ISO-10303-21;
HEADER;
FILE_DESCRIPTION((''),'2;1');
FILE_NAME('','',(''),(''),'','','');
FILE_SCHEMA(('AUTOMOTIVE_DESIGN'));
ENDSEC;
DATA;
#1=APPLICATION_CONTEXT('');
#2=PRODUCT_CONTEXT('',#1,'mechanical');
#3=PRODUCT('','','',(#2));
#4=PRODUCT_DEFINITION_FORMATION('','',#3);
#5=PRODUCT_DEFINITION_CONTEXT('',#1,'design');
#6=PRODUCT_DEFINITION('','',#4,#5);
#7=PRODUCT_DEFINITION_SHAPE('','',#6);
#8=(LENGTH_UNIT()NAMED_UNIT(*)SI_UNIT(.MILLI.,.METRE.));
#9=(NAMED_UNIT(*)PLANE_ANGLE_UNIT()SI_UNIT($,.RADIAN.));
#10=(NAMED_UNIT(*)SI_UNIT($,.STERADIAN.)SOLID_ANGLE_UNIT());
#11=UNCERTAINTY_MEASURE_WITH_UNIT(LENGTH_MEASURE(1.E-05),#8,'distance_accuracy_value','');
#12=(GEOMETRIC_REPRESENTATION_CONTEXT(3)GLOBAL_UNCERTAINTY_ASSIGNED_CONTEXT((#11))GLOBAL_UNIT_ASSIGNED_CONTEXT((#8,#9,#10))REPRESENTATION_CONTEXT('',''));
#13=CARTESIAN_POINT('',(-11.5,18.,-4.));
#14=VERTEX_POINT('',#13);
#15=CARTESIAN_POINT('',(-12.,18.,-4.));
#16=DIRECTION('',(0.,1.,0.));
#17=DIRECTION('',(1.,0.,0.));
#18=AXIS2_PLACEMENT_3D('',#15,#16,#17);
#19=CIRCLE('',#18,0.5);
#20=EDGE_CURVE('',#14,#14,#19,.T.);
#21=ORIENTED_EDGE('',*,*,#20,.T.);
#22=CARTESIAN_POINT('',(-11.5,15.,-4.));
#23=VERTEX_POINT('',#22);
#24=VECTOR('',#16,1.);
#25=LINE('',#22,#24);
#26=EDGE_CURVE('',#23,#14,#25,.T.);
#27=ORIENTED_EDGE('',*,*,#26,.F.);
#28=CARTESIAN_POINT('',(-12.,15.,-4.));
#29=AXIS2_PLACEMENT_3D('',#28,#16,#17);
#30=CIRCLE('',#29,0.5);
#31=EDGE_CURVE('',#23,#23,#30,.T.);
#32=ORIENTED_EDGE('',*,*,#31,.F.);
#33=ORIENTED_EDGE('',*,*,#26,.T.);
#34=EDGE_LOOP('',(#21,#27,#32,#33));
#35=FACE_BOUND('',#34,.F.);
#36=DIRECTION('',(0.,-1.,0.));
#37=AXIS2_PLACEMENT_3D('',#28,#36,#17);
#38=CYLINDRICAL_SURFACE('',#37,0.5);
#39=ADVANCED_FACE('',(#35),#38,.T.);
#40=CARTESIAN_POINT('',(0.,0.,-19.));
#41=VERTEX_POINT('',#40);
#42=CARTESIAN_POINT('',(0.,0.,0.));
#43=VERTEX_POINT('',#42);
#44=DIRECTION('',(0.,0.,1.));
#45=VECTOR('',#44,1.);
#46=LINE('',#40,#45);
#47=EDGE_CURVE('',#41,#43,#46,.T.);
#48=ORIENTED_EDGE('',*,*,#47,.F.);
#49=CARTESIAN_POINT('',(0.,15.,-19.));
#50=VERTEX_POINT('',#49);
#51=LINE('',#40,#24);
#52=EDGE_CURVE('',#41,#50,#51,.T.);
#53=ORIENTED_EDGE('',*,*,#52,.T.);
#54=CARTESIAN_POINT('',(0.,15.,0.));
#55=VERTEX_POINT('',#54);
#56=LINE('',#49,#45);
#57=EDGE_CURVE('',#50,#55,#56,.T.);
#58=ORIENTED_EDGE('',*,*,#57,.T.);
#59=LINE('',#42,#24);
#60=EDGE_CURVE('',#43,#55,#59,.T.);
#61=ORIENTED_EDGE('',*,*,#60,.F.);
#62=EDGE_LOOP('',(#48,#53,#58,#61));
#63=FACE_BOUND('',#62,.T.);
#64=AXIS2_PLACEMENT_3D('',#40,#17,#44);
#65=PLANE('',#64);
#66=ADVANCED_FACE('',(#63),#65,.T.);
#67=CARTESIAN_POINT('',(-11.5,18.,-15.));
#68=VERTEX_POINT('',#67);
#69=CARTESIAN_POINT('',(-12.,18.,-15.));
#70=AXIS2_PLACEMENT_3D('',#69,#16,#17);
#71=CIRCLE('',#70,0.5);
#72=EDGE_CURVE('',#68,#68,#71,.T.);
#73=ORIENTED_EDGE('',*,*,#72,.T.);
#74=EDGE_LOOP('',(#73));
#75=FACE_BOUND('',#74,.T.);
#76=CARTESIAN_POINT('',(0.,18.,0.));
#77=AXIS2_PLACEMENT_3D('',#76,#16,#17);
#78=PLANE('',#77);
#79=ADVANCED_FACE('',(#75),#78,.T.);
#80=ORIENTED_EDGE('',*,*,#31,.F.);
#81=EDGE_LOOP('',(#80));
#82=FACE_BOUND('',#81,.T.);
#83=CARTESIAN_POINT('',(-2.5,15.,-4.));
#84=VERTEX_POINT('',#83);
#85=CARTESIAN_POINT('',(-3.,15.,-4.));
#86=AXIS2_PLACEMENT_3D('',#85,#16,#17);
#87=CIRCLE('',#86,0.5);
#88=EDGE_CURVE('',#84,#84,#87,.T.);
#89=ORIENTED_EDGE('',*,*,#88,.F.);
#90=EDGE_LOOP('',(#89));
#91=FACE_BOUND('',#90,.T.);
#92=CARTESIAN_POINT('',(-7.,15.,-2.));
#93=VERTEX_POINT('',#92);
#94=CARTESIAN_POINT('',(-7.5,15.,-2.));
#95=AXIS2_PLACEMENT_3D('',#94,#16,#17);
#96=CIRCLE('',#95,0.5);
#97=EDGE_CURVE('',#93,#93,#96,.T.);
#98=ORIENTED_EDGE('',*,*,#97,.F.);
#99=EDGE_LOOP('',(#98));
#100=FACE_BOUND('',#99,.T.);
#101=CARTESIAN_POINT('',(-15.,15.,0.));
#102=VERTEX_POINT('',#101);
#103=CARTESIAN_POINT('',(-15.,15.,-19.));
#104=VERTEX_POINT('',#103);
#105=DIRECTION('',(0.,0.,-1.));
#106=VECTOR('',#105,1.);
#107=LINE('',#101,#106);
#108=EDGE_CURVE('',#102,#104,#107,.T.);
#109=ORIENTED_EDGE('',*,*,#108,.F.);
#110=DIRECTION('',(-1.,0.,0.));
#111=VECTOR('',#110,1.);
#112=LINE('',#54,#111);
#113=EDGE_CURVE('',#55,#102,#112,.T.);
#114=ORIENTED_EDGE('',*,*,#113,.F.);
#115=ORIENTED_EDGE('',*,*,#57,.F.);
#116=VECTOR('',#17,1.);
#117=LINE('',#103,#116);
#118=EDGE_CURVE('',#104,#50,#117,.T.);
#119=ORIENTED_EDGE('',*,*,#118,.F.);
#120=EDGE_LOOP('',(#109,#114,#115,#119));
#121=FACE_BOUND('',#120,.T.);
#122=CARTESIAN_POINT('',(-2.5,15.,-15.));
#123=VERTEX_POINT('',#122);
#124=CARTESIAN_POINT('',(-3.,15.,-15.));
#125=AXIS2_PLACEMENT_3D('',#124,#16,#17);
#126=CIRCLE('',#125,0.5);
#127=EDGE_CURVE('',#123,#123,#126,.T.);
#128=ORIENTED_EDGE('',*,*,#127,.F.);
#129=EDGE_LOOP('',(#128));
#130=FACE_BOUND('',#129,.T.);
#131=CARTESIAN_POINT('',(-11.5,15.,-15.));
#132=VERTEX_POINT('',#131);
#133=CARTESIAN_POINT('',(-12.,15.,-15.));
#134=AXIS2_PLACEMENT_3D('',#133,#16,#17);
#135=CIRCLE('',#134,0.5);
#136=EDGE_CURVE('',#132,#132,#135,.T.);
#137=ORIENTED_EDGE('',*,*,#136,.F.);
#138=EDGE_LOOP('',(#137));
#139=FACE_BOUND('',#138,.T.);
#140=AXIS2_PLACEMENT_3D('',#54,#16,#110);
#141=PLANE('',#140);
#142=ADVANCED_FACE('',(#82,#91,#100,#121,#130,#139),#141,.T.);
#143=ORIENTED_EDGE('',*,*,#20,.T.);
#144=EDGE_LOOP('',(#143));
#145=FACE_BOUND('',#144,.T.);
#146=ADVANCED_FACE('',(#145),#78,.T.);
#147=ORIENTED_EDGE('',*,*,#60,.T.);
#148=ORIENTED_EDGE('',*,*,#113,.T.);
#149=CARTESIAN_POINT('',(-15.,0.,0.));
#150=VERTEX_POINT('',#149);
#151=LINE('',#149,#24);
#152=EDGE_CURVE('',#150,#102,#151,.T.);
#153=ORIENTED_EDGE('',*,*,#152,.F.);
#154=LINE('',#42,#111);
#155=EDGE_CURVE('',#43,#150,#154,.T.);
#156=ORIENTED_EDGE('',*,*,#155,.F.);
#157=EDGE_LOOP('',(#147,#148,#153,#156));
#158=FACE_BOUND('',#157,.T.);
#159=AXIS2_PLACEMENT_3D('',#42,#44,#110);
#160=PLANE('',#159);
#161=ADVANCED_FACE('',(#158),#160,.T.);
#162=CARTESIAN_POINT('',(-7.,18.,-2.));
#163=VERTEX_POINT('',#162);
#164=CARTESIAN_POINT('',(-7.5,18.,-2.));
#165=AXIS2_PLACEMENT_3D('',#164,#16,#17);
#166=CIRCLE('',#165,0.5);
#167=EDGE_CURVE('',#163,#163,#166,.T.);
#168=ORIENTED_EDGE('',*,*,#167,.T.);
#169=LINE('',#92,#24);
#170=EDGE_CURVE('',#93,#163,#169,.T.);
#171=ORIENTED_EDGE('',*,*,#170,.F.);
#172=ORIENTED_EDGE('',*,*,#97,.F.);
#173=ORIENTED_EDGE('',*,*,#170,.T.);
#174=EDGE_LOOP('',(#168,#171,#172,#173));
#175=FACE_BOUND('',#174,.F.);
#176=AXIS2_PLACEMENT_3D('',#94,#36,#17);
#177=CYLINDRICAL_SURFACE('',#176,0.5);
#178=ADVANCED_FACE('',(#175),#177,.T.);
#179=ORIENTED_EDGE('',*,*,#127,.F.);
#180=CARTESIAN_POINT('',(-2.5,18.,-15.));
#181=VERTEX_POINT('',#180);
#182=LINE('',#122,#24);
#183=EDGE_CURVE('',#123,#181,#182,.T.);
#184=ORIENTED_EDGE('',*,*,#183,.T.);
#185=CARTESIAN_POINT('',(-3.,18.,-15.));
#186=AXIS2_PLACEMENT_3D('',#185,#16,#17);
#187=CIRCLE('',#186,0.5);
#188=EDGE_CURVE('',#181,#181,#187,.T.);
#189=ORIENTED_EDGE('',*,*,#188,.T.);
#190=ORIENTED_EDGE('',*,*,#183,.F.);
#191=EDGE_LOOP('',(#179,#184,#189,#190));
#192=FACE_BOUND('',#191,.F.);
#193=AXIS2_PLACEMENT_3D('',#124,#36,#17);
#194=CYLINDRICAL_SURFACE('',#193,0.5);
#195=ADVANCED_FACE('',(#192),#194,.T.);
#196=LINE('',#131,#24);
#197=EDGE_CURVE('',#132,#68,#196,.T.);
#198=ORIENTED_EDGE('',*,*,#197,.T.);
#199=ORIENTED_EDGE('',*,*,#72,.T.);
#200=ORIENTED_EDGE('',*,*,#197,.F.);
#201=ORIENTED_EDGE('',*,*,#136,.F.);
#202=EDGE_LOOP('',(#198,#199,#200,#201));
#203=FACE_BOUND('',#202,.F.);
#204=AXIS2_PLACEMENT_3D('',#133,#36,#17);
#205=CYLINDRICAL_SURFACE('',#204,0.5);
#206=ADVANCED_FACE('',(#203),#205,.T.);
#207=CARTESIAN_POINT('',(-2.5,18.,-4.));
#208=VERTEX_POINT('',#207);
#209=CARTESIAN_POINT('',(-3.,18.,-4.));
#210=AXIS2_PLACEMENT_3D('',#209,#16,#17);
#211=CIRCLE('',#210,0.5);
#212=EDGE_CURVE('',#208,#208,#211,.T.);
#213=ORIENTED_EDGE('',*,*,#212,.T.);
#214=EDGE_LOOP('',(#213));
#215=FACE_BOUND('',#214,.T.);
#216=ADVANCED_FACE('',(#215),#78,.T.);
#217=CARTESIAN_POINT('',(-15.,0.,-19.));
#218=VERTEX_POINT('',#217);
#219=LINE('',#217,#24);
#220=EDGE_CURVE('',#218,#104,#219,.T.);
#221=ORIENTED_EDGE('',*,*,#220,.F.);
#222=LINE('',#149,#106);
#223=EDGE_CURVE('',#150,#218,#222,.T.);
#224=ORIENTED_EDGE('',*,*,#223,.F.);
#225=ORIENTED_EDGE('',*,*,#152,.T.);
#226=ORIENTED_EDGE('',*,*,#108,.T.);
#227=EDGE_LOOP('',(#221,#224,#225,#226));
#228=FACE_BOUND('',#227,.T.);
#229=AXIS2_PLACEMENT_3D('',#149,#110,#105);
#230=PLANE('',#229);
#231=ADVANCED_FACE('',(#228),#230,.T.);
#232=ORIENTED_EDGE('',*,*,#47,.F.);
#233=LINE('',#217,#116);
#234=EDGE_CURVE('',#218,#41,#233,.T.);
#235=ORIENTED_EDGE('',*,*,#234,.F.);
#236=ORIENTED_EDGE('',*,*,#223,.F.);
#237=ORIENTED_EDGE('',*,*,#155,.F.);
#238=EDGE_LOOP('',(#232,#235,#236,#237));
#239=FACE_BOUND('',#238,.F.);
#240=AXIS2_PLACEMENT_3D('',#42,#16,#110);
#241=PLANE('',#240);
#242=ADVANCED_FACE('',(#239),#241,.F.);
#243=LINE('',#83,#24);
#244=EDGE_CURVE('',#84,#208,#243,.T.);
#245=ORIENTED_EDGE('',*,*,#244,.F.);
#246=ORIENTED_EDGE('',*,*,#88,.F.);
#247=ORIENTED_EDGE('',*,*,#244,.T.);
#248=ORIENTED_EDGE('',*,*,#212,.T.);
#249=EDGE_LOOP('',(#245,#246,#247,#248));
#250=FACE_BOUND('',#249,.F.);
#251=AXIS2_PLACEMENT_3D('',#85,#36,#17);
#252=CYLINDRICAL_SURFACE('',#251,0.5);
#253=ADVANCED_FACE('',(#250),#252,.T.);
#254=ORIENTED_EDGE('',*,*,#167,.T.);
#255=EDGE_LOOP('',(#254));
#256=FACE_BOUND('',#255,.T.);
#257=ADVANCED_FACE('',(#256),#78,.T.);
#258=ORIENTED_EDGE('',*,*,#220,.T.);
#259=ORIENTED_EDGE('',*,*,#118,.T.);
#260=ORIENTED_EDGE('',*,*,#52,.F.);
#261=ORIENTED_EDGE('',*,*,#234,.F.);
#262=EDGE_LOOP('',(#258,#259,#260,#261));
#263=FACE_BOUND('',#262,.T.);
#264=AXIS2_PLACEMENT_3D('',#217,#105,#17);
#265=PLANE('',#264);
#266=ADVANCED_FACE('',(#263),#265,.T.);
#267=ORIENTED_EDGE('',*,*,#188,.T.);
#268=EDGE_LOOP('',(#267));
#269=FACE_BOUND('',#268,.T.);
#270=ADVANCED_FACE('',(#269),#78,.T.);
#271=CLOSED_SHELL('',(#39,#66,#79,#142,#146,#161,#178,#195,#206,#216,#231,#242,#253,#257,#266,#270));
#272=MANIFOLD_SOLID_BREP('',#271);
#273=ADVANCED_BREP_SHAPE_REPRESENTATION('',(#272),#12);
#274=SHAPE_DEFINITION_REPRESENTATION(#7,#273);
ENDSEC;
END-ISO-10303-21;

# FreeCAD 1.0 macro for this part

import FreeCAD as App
import Part
import Sketcher
from FreeCAD import Vector
Q = App.Units.Quantity


def add_polygon(sketch, points):
    """Adds a closed chain of lines whose ends are joined by coincident constraints."""
    first, n = sketch.GeometryCount, len(points)
    for a, b in zip(points, points[1:] + points[:1]):
        sketch.addGeometry(Part.LineSegment(App.Vector(*a, 0), App.Vector(*b, 0)), False)
    for i in range(n):
        sketch.addConstraint(Sketcher.Constraint("Coincident", first + i, 2, first + (i + 1) % n, 1))

doc = App.newDocument("Part")
body = doc.addObject("PartDesign::Body", "Body")

# Sketch on XZ plane
sketch1 = body.newObject("Sketcher::SketchObject", "Sketch")
sketch1.AttachmentSupport = (doc.getObject("XZ_Plane"), [""])
sketch1.MapMode = "FlatFace"
add_polygon(sketch1, [(-15, 0), (0, 0), (0, -19), (-15, -19)])  # lines 0-3
sketch1.addConstraint([
    Sketcher.Constraint("Horizontal", 0),
    Sketcher.Constraint("Vertical", 1),
    Sketcher.Constraint("Horizontal", 2),
    Sketcher.Constraint("Vertical", 3),
    Sketcher.Constraint("Coincident", 0, 2, -1, 1),
    Sketcher.Constraint("DistanceX", 0, 1, 0, 2, Q("15 mm")),
    Sketcher.Constraint("DistanceY", 1, 2, 1, 1, Q("19 mm")),
])
pad1 = body.newObject("PartDesign::Pad", "Pad")
pad1.Profile = sketch1
pad1.Length = 15
pad1.Reversed = True

# Sketch on XZ plane
sketch2 = body.newObject("Sketcher::SketchObject", "Sketch001")
sketch2.AttachmentSupport = (doc.getObject("XZ_Plane"), [""])
sketch2.MapMode = "FlatFace"
sketch2.AttachmentOffset = App.Placement(Vector(0, 0, -15), App.Rotation())
sketch2.addGeometry([
    Part.Circle(Vector(-3, -4, 0), Vector(0, 0, 1), 0.5),  # 0
    Part.Circle(Vector(-3, -15, 0), Vector(0, 0, 1), 0.5),  # 1
    Part.Circle(Vector(-7.5, -2, 0), Vector(0, 0, 1), 0.5),  # 2
    Part.Circle(Vector(-12, -4, 0), Vector(0, 0, 1), 0.5),  # 3
    Part.Circle(Vector(-12, -15, 0), Vector(0, 0, 1), 0.5),  # 4
], False)
sketch2.addConstraint([
    Sketcher.Constraint("Equal", 0, 1),
    Sketcher.Constraint("Equal", 1, 2),
    Sketcher.Constraint("Equal", 2, 3),
    Sketcher.Constraint("Equal", 3, 4),
    Sketcher.Constraint("Horizontal", 0, 3, 3, 3),
    Sketcher.Constraint("Horizontal", 1, 3, 4, 3),
    Sketcher.Constraint("Vertical", 0, 3, 1, 3),
    Sketcher.Constraint("Vertical", 3, 3, 4, 3),
    Sketcher.Constraint("Diameter", 0, Q("1 mm")),
    Sketcher.Constraint("DistanceX", 0, 3, -1, 1, Q("3 mm")),
    Sketcher.Constraint("DistanceY", 0, 3, -1, 1, Q("4 mm")),
    Sketcher.Constraint("DistanceY", 2, 3, -1, 1, Q("2 mm")),
    Sketcher.Constraint("DistanceY", 1, 3, -1, 1, Q("15 mm")),
    Sketcher.Constraint("DistanceX", 3, 3, -1, 1, Q("12 mm")),
    Sketcher.Constraint("DistanceX", 2, 3, -1, 1, Q("7.5 mm")),
])
pad2 = body.newObject("PartDesign::Pad", "Pad001")
pad2.Profile = sketch2
pad2.Length = 3
pad2.Reversed = True

doc.recompute()
